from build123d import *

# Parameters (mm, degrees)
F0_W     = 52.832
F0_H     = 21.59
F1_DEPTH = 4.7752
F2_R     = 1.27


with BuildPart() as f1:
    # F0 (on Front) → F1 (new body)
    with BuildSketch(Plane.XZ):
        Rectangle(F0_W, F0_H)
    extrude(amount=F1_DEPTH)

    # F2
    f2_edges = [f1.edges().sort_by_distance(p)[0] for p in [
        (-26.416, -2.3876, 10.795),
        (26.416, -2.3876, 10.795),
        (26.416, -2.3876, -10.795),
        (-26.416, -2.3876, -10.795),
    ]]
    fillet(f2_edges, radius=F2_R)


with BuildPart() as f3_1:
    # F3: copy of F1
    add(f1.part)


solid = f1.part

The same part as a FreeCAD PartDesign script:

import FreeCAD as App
import Part
import Sketcher

V = App.Vector
Q = App.Units.Quantity


def edges_at(feature, points):
    """Names of the edges that pass closest to the given points."""
    edges = feature.Shape.Edges
    near = lambda p: min(range(len(edges)), key=lambda i: edges[i].distToShape(Part.Vertex(*p))[0])
    return sorted({f"Edge{near(p) + 1}" for p in points})

doc = App.newDocument("Part")
body = doc.addObject("PartDesign::Body", "Body")

sketch1 = body.newObject("Sketcher::SketchObject", "Sketch")
sketch1.AttachmentSupport = (doc.getObject("XZ_Plane"), [""])
sketch1.MapMode = "FlatFace"
sketch1.addGeometry([
    Part.LineSegment(V(-26.416, 10.795, 0), V(-26.416, -10.795, 0)),
    Part.LineSegment(V(-26.416, -10.795, 0), V(26.416, -10.795, 0)),
    Part.LineSegment(V(26.416, -10.795, 0), V(26.416, 10.795, 0)),
    Part.LineSegment(V(26.416, 10.795, 0), V(-26.416, 10.795, 0)),
], False)
sketch1.addConstraint([
    Sketcher.Constraint("Coincident", 0, 2, 1, 1),
    Sketcher.Constraint("Coincident", 1, 2, 2, 1),
    Sketcher.Constraint("Coincident", 2, 2, 3, 1),
    Sketcher.Constraint("Coincident", 3, 2, 0, 1),
    Sketcher.Constraint("Vertical", 0),
    Sketcher.Constraint("Horizontal", 1),
    Sketcher.Constraint("Vertical", 2),
    Sketcher.Constraint("Horizontal", 3),
    Sketcher.Constraint("Symmetric", 0, 2, 2, 2, -1, 1),
    Sketcher.Constraint("DistanceX", 1, 1, 1, 2, Q("2.08 in")),
    Sketcher.Constraint("DistanceY", 0, 2, 0, 1, Q("0.85 in")),
])
pad1 = body.newObject("PartDesign::Pad", "Pad")
pad1.Profile = sketch1
pad1.Length = Q("0.188 in")
doc.recompute()

fillet = body.newObject("PartDesign::Fillet", "Fillet")
fillet.Base = (pad1, edges_at(pad1, [
    (-26.416, -2.388, 10.795),
    (26.416, -2.388, 10.795),
    (26.416, -2.388, -10.795),
    (-26.416, -2.388, -10.795),
]))
fillet.Radius = Q("0.05 in")
body2 = doc.addObject("PartDesign::Body", "Body001")
doc.recompute()

body2.BaseFeature = body
doc.recompute()
body.Visibility = False

doc.recompute()
